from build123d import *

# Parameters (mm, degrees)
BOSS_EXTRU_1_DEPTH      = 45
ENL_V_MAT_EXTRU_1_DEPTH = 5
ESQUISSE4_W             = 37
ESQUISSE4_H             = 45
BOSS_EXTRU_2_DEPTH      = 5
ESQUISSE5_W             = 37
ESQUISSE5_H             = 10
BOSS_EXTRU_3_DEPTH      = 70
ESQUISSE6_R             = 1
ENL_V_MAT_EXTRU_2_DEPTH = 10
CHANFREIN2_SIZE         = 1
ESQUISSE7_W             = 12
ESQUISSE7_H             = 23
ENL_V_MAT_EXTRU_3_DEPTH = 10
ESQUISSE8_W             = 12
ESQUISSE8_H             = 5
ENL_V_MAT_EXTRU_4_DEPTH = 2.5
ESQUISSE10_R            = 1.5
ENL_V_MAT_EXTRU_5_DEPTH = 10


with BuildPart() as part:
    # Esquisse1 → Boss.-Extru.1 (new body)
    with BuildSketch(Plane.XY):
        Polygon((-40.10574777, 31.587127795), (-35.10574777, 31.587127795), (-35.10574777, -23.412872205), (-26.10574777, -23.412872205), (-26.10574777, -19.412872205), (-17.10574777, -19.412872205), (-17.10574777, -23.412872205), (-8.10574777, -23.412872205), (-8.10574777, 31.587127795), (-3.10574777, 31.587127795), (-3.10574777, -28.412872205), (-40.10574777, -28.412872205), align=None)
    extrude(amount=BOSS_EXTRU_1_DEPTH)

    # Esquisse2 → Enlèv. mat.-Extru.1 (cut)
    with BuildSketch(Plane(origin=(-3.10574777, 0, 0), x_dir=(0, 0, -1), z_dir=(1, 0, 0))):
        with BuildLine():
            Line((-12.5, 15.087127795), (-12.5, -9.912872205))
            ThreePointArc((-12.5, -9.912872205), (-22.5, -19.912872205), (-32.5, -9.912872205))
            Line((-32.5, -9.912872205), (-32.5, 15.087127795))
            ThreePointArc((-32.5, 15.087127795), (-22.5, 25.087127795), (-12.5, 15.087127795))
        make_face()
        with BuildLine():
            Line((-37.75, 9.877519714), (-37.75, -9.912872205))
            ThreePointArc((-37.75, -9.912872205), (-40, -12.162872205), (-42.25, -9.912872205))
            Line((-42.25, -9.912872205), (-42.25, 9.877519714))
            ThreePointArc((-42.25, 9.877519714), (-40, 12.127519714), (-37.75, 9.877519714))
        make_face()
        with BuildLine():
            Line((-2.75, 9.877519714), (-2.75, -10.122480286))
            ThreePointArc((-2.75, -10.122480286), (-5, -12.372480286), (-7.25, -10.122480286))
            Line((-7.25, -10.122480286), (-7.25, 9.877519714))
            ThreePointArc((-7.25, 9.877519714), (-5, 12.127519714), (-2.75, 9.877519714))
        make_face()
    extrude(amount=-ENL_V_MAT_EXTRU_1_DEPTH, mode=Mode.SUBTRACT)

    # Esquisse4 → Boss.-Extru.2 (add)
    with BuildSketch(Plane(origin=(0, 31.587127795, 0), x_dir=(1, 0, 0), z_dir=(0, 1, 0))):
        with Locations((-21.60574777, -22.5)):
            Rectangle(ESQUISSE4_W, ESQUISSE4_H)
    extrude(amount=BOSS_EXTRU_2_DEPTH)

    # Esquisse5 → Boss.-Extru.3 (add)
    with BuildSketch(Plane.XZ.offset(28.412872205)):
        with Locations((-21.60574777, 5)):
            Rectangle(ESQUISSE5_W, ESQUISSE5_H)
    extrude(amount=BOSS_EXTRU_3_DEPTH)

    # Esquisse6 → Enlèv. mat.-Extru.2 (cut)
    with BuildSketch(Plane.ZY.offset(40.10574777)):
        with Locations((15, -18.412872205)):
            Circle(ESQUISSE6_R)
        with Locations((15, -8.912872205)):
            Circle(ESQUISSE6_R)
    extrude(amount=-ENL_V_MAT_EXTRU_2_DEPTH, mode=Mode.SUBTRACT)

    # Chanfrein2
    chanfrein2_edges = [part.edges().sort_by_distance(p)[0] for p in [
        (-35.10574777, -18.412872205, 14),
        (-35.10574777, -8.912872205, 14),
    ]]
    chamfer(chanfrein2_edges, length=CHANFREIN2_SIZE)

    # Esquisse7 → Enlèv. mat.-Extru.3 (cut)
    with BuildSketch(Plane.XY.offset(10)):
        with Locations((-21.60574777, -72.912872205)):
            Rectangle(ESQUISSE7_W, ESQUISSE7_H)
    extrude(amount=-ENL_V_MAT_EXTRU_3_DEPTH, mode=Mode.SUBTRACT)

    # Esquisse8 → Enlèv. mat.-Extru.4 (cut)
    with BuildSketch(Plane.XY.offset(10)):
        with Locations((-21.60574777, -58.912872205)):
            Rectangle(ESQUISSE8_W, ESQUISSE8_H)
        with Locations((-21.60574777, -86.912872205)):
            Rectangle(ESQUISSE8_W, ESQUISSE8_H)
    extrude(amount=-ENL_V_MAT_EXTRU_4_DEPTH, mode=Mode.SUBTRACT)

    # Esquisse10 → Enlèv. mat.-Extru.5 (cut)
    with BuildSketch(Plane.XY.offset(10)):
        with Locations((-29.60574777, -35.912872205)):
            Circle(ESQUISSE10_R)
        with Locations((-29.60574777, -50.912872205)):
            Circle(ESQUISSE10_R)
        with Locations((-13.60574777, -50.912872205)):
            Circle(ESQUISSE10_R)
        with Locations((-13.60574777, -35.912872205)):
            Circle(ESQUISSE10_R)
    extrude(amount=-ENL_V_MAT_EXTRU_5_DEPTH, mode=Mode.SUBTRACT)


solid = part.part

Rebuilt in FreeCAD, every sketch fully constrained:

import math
import FreeCAD as App
import Part
import Sketcher


def edges_at(feature, points):
    """Names of the edges that pass closest to the given points."""
    edges = feature.Shape.Edges
    near = lambda p: min(range(len(edges)), key=lambda i: edges[i].distToShape(Part.Vertex(*p))[0])
    return sorted({f"Edge{near(p) + 1}" for p in points})

doc = App.newDocument("Part")
params = doc.addObject("Spreadsheet::Sheet", "Params")
for row, (alias, value) in enumerate([
    ("sketch1_width", "5 mm"),
    ("sketch1_width2", "37 mm"),
    ("sketch1_height", "60 mm"),
    ("sketch1_height2", "55 mm"),
    ("sketch1_height3", "4 mm"),
    ("pad1_length", "45 mm"),
    ("sketch2_radius", "10 mm"),
    ("sketch2_width", "25 mm"),
    ("sketch2_width2", "20 mm"),
    ("sketch2_radius2", "2.25 mm"),
    ("pocket1_length", "5 mm"),
    ("sketch3_width", "37 mm"),
    ("sketch3_height", "45 mm"),
    ("pad2_length", "5 mm"),
    ("sketch4_width", "37 mm"),
    ("sketch4_height", "10 mm"),
    ("pad3_length", "70 mm"),
    ("sketch5_diameter", "2 mm"),
    ("pocket2_length", "10 mm"),
    ("chamfer_size", "1 mm"),
    ("sketch6_width", "12 mm"),
    ("sketch6_height", "23 mm"),
    ("pocket3_length", "10 mm"),
    ("sketch7_width", "12 mm"),
    ("sketch7_height", "5 mm"),
    ("pocket4_length", "2.5 mm"),
    ("sketch8_diameter", "3 mm"),
    ("pocket5_length", "10 mm"),
], start=1):
    params.set(f"A{row}", alias)
    params.set(f"B{row}", "=" + value)
    params.setAlias(f"B{row}", alias)

body = doc.addObject("PartDesign::Body", "Body")

# Sketch on XY plane
sketch1 = body.newObject("Sketcher::SketchObject", "Sketch")
sketch1.AttachmentSupport = (doc.getObject("XY_Plane"), [""])
sketch1.MapMode = "FlatFace"
sketch1.addGeometry([
    Part.LineSegment(App.Vector(-35.105748, 31.587128, 0), App.Vector(-40.105748, 31.587128, 0)),  # 0
    Part.LineSegment(App.Vector(-40.105748, 31.587128, 0), App.Vector(-40.105748, -28.412872, 0)),  # 1
    Part.LineSegment(App.Vector(-40.105748, -28.412872, 0), App.Vector(-3.105748, -28.412872, 0)),  # 2
    Part.LineSegment(App.Vector(-3.105748, -28.412872, 0), App.Vector(-3.105748, 31.587128, 0)),  # 3
    Part.LineSegment(App.Vector(-3.105748, 31.587128, 0), App.Vector(-8.105748, 31.587128, 0)),  # 4
    Part.LineSegment(App.Vector(-8.105748, 31.587128, 0), App.Vector(-8.105748, -23.412872, 0)),  # 5
    Part.LineSegment(App.Vector(-8.105748, -23.412872, 0), App.Vector(-17.105748, -23.412872, 0)),  # 6
    Part.LineSegment(App.Vector(-17.105748, -23.412872, 0), App.Vector(-17.105748, -19.412872, 0)),  # 7
    Part.LineSegment(App.Vector(-17.105748, -19.412872, 0), App.Vector(-26.105748, -19.412872, 0)),  # 8
    Part.LineSegment(App.Vector(-26.105748, -19.412872, 0), App.Vector(-26.105748, -23.412872, 0)),  # 9
    Part.LineSegment(App.Vector(-26.105748, -23.412872, 0), App.Vector(-35.105748, -23.412872, 0)),  # 10
    Part.LineSegment(App.Vector(-35.105748, -23.412872, 0), App.Vector(-35.105748, 31.587128, 0)),  # 11
], False)
sketch1.addConstraint([
    Sketcher.Constraint("Coincident", 0, 2, 1, 1),
    Sketcher.Constraint("Coincident", 1, 2, 2, 1),
    Sketcher.Constraint("Coincident", 2, 2, 3, 1),
    Sketcher.Constraint("Coincident", 3, 2, 4, 1),
    Sketcher.Constraint("Coincident", 4, 2, 5, 1),
    Sketcher.Constraint("Coincident", 5, 2, 6, 1),
    Sketcher.Constraint("Coincident", 6, 2, 7, 1),
    Sketcher.Constraint("Coincident", 7, 2, 8, 1),
    Sketcher.Constraint("Coincident", 8, 2, 9, 1),
    Sketcher.Constraint("Coincident", 9, 2, 10, 1),
    Sketcher.Constraint("Coincident", 10, 2, 11, 1),
    Sketcher.Constraint("Coincident", 11, 2, 0, 1),
    Sketcher.Constraint("Horizontal", 0),
    Sketcher.Constraint("Vertical", 1),
    Sketcher.Constraint("Horizontal", 2),
    Sketcher.Constraint("Vertical", 3),
    Sketcher.Constraint("Horizontal", 4),
    Sketcher.Constraint("Vertical", 5),
    Sketcher.Constraint("Horizontal", 6),
    Sketcher.Constraint("Vertical", 7),
    Sketcher.Constraint("Horizontal", 8),
    Sketcher.Constraint("Vertical", 9),
    Sketcher.Constraint("Horizontal", 10),
    Sketcher.Constraint("Vertical", 11),
    Sketcher.Constraint("Horizontal", 0, 2, 3, 2),
    Sketcher.Constraint("Horizontal", 6, 2, 9, 2),
    Sketcher.Constraint("Equal", 0, 4),
    Sketcher.Constraint("Equal", 6, 8),
    Sketcher.Constraint("Equal", 8, 10),
    Sketcher.Constraint("DistanceX", 0, 2, 0, 1, 5.0),
    Sketcher.Constraint("DistanceX", 2, 1, 2, 2, 37.0),
    Sketcher.Constraint("DistanceY", 1, 2, 1, 1, 60.0),
    Sketcher.Constraint("DistanceY", 5, 2, 5, 1, 55.0),
    Sketcher.Constraint("DistanceY", 7, 1, 7, 2, 4.0),
    Sketcher.Constraint("DistanceX", 0, 2, -1, 1, 40.105748),
    Sketcher.Constraint("DistanceY", -1, 1, 0, 2, 31.587128),
])
sketch1.setExpression("Constraints[29]", "Params.sketch1_width")
sketch1.setExpression("Constraints[30]", "Params.sketch1_width2")
sketch1.setExpression("Constraints[31]", "Params.sketch1_height")
sketch1.setExpression("Constraints[32]", "Params.sketch1_height2")
sketch1.setExpression("Constraints[33]", "Params.sketch1_height3")
pad1 = body.newObject("PartDesign::Pad", "Pad")
pad1.Profile = sketch1
pad1.setExpression("Length", "Params.pad1_length")

# Sketch on YZ plane
sketch2 = body.newObject("Sketcher::SketchObject", "Sketch001")
sketch2.AttachmentSupport = (doc.getObject("YZ_Plane"), [""])
sketch2.MapMode = "FlatFace"
sketch2.AttachmentOffset = App.Placement(App.Vector(0, 0, -3.105748), App.Rotation())
sketch2.addGeometry([
    Part.LineSegment(App.Vector(-9.912872, 12.5, 0), App.Vector(15.087128, 12.5, 0)),  # 0
    Part.ArcOfCircle(Part.Circle(App.Vector(15.087128, 22.5, 0), App.Vector(0, 0, 1), 10), math.radians(-90), math.radians(90)),  # 1
    Part.LineSegment(App.Vector(15.087128, 32.5, 0), App.Vector(-9.912872, 32.5, 0)),  # 2
    Part.ArcOfCircle(Part.Circle(App.Vector(-9.912872, 22.5, 0), App.Vector(0, 0, 1), 10), math.radians(90), math.radians(270)),  # 3
    Part.LineSegment(App.Vector(-9.912872, 37.75, 0), App.Vector(9.87752, 37.75, 0)),  # 4
    Part.ArcOfCircle(Part.Circle(App.Vector(9.87752, 40, 0), App.Vector(0, 0, 1), 2.25), math.radians(-90), math.radians(90)),  # 5
    Part.LineSegment(App.Vector(9.87752, 42.25, 0), App.Vector(-9.912872, 42.25, 0)),  # 6
    Part.ArcOfCircle(Part.Circle(App.Vector(-9.912872, 40, 0), App.Vector(0, 0, 1), 2.25), math.radians(90), math.radians(270)),  # 7
    Part.LineSegment(App.Vector(-10.12248, 2.75, 0), App.Vector(9.87752, 2.75, 0)),  # 8
    Part.ArcOfCircle(Part.Circle(App.Vector(9.87752, 5, 0), App.Vector(0, 0, 1), 2.25), math.radians(-90), math.radians(90)),  # 9
    Part.LineSegment(App.Vector(9.87752, 7.25, 0), App.Vector(-10.12248, 7.25, 0)),  # 10
    Part.ArcOfCircle(Part.Circle(App.Vector(-10.12248, 5, 0), App.Vector(0, 0, 1), 2.25), math.radians(90), math.radians(270)),  # 11
], False)
sketch2.addConstraint([
    Sketcher.Constraint("Tangent", 0, 2, 1, 1),
    Sketcher.Constraint("Tangent", 1, 2, 2, 1),
    Sketcher.Constraint("Tangent", 2, 2, 3, 1),
    Sketcher.Constraint("Tangent", 3, 2, 0, 1),
    Sketcher.Constraint("Tangent", 4, 2, 5, 1),
    Sketcher.Constraint("Tangent", 5, 2, 6, 1),
    Sketcher.Constraint("Tangent", 6, 2, 7, 1),
    Sketcher.Constraint("Tangent", 7, 2, 4, 1),
    Sketcher.Constraint("Tangent", 8, 2, 9, 1),
    Sketcher.Constraint("Tangent", 9, 2, 10, 1),
    Sketcher.Constraint("Tangent", 10, 2, 11, 1),
    Sketcher.Constraint("Tangent", 11, 2, 8, 1),
    Sketcher.Constraint("Horizontal", 0),
    Sketcher.Constraint("Horizontal", 2),
    Sketcher.Constraint("Horizontal", 4),
    Sketcher.Constraint("Horizontal", 6),
    Sketcher.Constraint("Horizontal", 8),
    Sketcher.Constraint("Horizontal", 10),
    Sketcher.Constraint("Equal", 7, 9),
    Sketcher.Constraint("Vertical", 3, 3, 7, 3),
    Sketcher.Constraint("Vertical", 5, 3, 9, 3),
    Sketcher.Constraint("Radius", 1, 10.0),
    Sketcher.Constraint("DistanceX", 0, 1, 0, 2, 25.0),
    Sketcher.Constraint("DistanceX", 8, 1, 8, 2, 20.0),
    Sketcher.Constraint("Radius", 5, 2.25),
    Sketcher.Constraint("DistanceY", -1, 1, 5, 3, 40.0),
    Sketcher.Constraint("DistanceY", -1, 1, 9, 3, 5.0),
    Sketcher.Constraint("DistanceY", -1, 1, 1, 3, 22.5),
    Sketcher.Constraint("DistanceX", 4, 1, 4, 2, 19.790392),
    Sketcher.Constraint("DistanceX", -1, 1, 5, 3, 9.87752),
])
sketch2.setExpression("Constraints[21]", "Params.sketch2_radius")
sketch2.setExpression("Constraints[22]", "Params.sketch2_width")
sketch2.setExpression("Constraints[23]", "Params.sketch2_width2")
sketch2.setExpression("Constraints[24]", "Params.sketch2_radius2")
pocket1 = body.newObject("PartDesign::Pocket", "Pocket")
pocket1.Profile = sketch2
pocket1.setExpression("Length", "Params.pocket1_length")

# Sketch on XZ plane
sketch3 = body.newObject("Sketcher::SketchObject", "Sketch002")
sketch3.AttachmentSupport = (doc.getObject("XZ_Plane"), [""])
sketch3.MapMode = "FlatFace"
sketch3.AttachmentOffset = App.Placement(App.Vector(0, 0, -31.587128), App.Rotation())
sketch3.addGeometry([
    Part.LineSegment(App.Vector(-40.105748, 0, 0), App.Vector(-40.105748, 45, 0)),
    Part.LineSegment(App.Vector(-40.105748, 45, 0), App.Vector(-3.105748, 45, 0)),
    Part.LineSegment(App.Vector(-3.105748, 45, 0), App.Vector(-3.105748, 0, 0)),
    Part.LineSegment(App.Vector(-3.105748, 0, 0), App.Vector(-40.105748, 0, 0)),
], False)
sketch3.addConstraint([
    Sketcher.Constraint("Coincident", 0, 2, 1, 1),
    Sketcher.Constraint("Coincident", 1, 2, 2, 1),
    Sketcher.Constraint("Coincident", 2, 2, 3, 1),
    Sketcher.Constraint("Coincident", 3, 2, 0, 1),
    Sketcher.Constraint("Vertical", 0),
    Sketcher.Constraint("Horizontal", 1),
    Sketcher.Constraint("Vertical", 2),
    Sketcher.Constraint("Horizontal", 3),
    Sketcher.Constraint("PointOnObject", 2, 2, -1),
    Sketcher.Constraint("DistanceX", 1, 1, 1, 2, 37.0),
    Sketcher.Constraint("DistanceY", 0, 1, 0, 2, 45.0),
    Sketcher.Constraint("DistanceX", 0, 2, -1, 1, 40.105748),
])
sketch3.setExpression("Constraints[9]", "Params.sketch3_width")
sketch3.setExpression("Constraints[10]", "Params.sketch3_height")
pad2 = body.newObject("PartDesign::Pad", "Pad001")
pad2.Profile = sketch3
pad2.setExpression("Length", "Params.pad2_length")
pad2.Reversed = True

# Sketch on XZ plane
sketch4 = body.newObject("Sketcher::SketchObject", "Sketch003")
sketch4.AttachmentSupport = (doc.getObject("XZ_Plane"), [""])
sketch4.MapMode = "FlatFace"
sketch4.AttachmentOffset = App.Placement(App.Vector(0, 0, 28.412872), App.Rotation())
sketch4.addGeometry([
    Part.LineSegment(App.Vector(-40.105748, 10, 0), App.Vector(-40.105748, 0, 0)),
    Part.LineSegment(App.Vector(-40.105748, 0, 0), App.Vector(-3.105748, 0, 0)),
    Part.LineSegment(App.Vector(-3.105748, 0, 0), App.Vector(-3.105748, 10, 0)),
    Part.LineSegment(App.Vector(-3.105748, 10, 0), App.Vector(-40.105748, 10, 0)),
], False)
sketch4.addConstraint([
    Sketcher.Constraint("Coincident", 0, 2, 1, 1),
    Sketcher.Constraint("Coincident", 1, 2, 2, 1),
    Sketcher.Constraint("Coincident", 2, 2, 3, 1),
    Sketcher.Constraint("Coincident", 3, 2, 0, 1),
    Sketcher.Constraint("Vertical", 0),
    Sketcher.Constraint("Horizontal", 1),
    Sketcher.Constraint("Vertical", 2),
    Sketcher.Constraint("Horizontal", 3),
    Sketcher.Constraint("PointOnObject", 0, 2, -1),
    Sketcher.Constraint("DistanceX", 1, 1, 1, 2, 37.0),
    Sketcher.Constraint("DistanceY", 0, 2, 0, 1, 10.0),
    Sketcher.Constraint("DistanceX", 0, 2, -1, 1, 40.105748),
])
sketch4.setExpression("Constraints[9]", "Params.sketch4_width")
sketch4.setExpression("Constraints[10]", "Params.sketch4_height")
pad3 = body.newObject("PartDesign::Pad", "Pad002")
pad3.Profile = sketch4
pad3.setExpression("Length", "Params.pad3_length")

# Sketch on YZ plane
sketch5 = body.newObject("Sketcher::SketchObject", "Sketch004")
sketch5.AttachmentSupport = (doc.getObject("YZ_Plane"), [""])
sketch5.MapMode = "FlatFace"
sketch5.AttachmentOffset = App.Placement(App.Vector(0, 0, -40.105748), App.Rotation())
sketch5.addGeometry([
    Part.Circle(App.Vector(-18.412872, 15, 0), App.Vector(0, 0, 1), 1),
    Part.Circle(App.Vector(-8.912872, 15, 0), App.Vector(0, 0, 1), 1),
], False)
sketch5.addConstraint([
    Sketcher.Constraint("Equal", 0, 1),
    Sketcher.Constraint("Horizontal", 0, 3, 1, 3),
    Sketcher.Constraint("Diameter", 0, 2.0),
    Sketcher.Constraint("DistanceY", -1, 1, 0, 3, 15.0),
    Sketcher.Constraint("DistanceX", 0, 3, 1, 3, 9.5),
    Sketcher.Constraint("DistanceX", 0, 3, -1, 1, 18.412872),
])
sketch5.setExpression("Constraints[2]", "Params.sketch5_diameter")
pocket2 = body.newObject("PartDesign::Pocket", "Pocket001")
pocket2.Profile = sketch5
pocket2.setExpression("Length", "Params.pocket2_length")
pocket2.Reversed = True
doc.recompute()

chamfer = body.newObject("PartDesign::Chamfer", "Chamfer")
chamfer.Base = (pocket2, edges_at(pocket2, [(-35.106, -18.413, 14), (-35.106, -8.913, 14)]))
chamfer.setExpression("Size", "Params.chamfer_size")

# Sketch on XY plane
sketch6 = body.newObject("Sketcher::SketchObject", "Sketch005")
sketch6.AttachmentSupport = (doc.getObject("XY_Plane"), [""])
sketch6.MapMode = "FlatFace"
sketch6.AttachmentOffset = App.Placement(App.Vector(0, 0, 10), App.Rotation())
sketch6.addGeometry([
    Part.LineSegment(App.Vector(-27.605748, -61.412872, 0), App.Vector(-27.605748, -84.412872, 0)),
    Part.LineSegment(App.Vector(-27.605748, -84.412872, 0), App.Vector(-15.605748, -84.412872, 0)),
    Part.LineSegment(App.Vector(-15.605748, -84.412872, 0), App.Vector(-15.605748, -61.412872, 0)),
    Part.LineSegment(App.Vector(-15.605748, -61.412872, 0), App.Vector(-27.605748, -61.412872, 0)),
], False)
sketch6.addConstraint([
    Sketcher.Constraint("Coincident", 0, 2, 1, 1),
    Sketcher.Constraint("Coincident", 1, 2, 2, 1),
    Sketcher.Constraint("Coincident", 2, 2, 3, 1),
    Sketcher.Constraint("Coincident", 3, 2, 0, 1),
    Sketcher.Constraint("Vertical", 0),
    Sketcher.Constraint("Horizontal", 1),
    Sketcher.Constraint("Vertical", 2),
    Sketcher.Constraint("Horizontal", 3),
    Sketcher.Constraint("DistanceX", 1, 1, 1, 2, 12.0),
    Sketcher.Constraint("DistanceY", 0, 2, 0, 1, 23.0),
    Sketcher.Constraint("DistanceX", 0, 2, -1, 1, 27.605748),
    Sketcher.Constraint("DistanceY", 0, 2, -1, 1, 84.412872),
])
sketch6.setExpression("Constraints[8]", "Params.sketch6_width")
sketch6.setExpression("Constraints[9]", "Params.sketch6_height")
pocket3 = body.newObject("PartDesign::Pocket", "Pocket002")
pocket3.Profile = sketch6
pocket3.setExpression("Length", "Params.pocket3_length")

# Sketch on XY plane
sketch7 = body.newObject("Sketcher::SketchObject", "Sketch006")
sketch7.AttachmentSupport = (doc.getObject("XY_Plane"), [""])
sketch7.MapMode = "FlatFace"
sketch7.AttachmentOffset = App.Placement(App.Vector(0, 0, 10), App.Rotation())
sketch7.addGeometry([
    Part.LineSegment(App.Vector(-27.605748, -56.412872, 0), App.Vector(-27.605748, -61.412872, 0)),  # 0
    Part.LineSegment(App.Vector(-27.605748, -61.412872, 0), App.Vector(-15.605748, -61.412872, 0)),  # 1
    Part.LineSegment(App.Vector(-15.605748, -61.412872, 0), App.Vector(-15.605748, -56.412872, 0)),  # 2
    Part.LineSegment(App.Vector(-15.605748, -56.412872, 0), App.Vector(-27.605748, -56.412872, 0)),  # 3
    Part.LineSegment(App.Vector(-27.605748, -84.412872, 0), App.Vector(-27.605748, -89.412872, 0)),  # 4
    Part.LineSegment(App.Vector(-27.605748, -89.412872, 0), App.Vector(-15.605748, -89.412872, 0)),  # 5
    Part.LineSegment(App.Vector(-15.605748, -89.412872, 0), App.Vector(-15.605748, -84.412872, 0)),  # 6
    Part.LineSegment(App.Vector(-15.605748, -84.412872, 0), App.Vector(-27.605748, -84.412872, 0)),  # 7
], False)
sketch7.addConstraint([
    Sketcher.Constraint("Coincident", 0, 2, 1, 1),
    Sketcher.Constraint("Coincident", 1, 2, 2, 1),
    Sketcher.Constraint("Coincident", 2, 2, 3, 1),
    Sketcher.Constraint("Coincident", 3, 2, 0, 1),
    Sketcher.Constraint("Coincident", 4, 2, 5, 1),
    Sketcher.Constraint("Coincident", 5, 2, 6, 1),
    Sketcher.Constraint("Coincident", 6, 2, 7, 1),
    Sketcher.Constraint("Coincident", 7, 2, 4, 1),
    Sketcher.Constraint("Vertical", 0),
    Sketcher.Constraint("Horizontal", 1),
    Sketcher.Constraint("Vertical", 2),
    Sketcher.Constraint("Horizontal", 3),
    Sketcher.Constraint("Vertical", 4),
    Sketcher.Constraint("Horizontal", 5),
    Sketcher.Constraint("Vertical", 6),
    Sketcher.Constraint("Horizontal", 7),
    Sketcher.Constraint("Vertical", 3, 2, 4, 2),
    Sketcher.Constraint("Vertical", 2, 2, 5, 2),
    Sketcher.Constraint("Equal", 2, 4),
    Sketcher.Constraint("DistanceX", 1, 1, 1, 2, 12.0),
    Sketcher.Constraint("DistanceY", 0, 2, 0, 1, 5.0),
    Sketcher.Constraint("DistanceY", 4, 2, 0, 2, 28.0),
    Sketcher.Constraint("DistanceX", 0, 2, -1, 1, 27.605748),
    Sketcher.Constraint("DistanceY", 0, 2, -1, 1, 61.412872),
])
sketch7.setExpression("Constraints[19]", "Params.sketch7_width")
sketch7.setExpression("Constraints[20]", "Params.sketch7_height")
pocket4 = body.newObject("PartDesign::Pocket", "Pocket003")
pocket4.Profile = sketch7
pocket4.setExpression("Length", "Params.pocket4_length")

# Sketch on XY plane
sketch8 = body.newObject("Sketcher::SketchObject", "Sketch007")
sketch8.AttachmentSupport = (doc.getObject("XY_Plane"), [""])
sketch8.MapMode = "FlatFace"
sketch8.AttachmentOffset = App.Placement(App.Vector(0, 0, 10), App.Rotation())
sketch8.addGeometry([
    Part.Circle(App.Vector(-29.605748, -35.912872, 0), App.Vector(0, 0, 1), 1.5),
    Part.Circle(App.Vector(-29.605748, -50.912872, 0), App.Vector(0, 0, 1), 1.5),
    Part.Circle(App.Vector(-13.605748, -50.912872, 0), App.Vector(0, 0, 1), 1.5),
    Part.Circle(App.Vector(-13.605748, -35.912872, 0), App.Vector(0, 0, 1), 1.5),
], False)
sketch8.addConstraint([
    Sketcher.Constraint("Equal", 0, 1),
    Sketcher.Constraint("Equal", 1, 2),
    Sketcher.Constraint("Equal", 2, 3),
    Sketcher.Constraint("Horizontal", 1, 3, 2, 3),
    Sketcher.Constraint("Horizontal", 0, 3, 3, 3),
    Sketcher.Constraint("Vertical", 0, 3, 1, 3),
    Sketcher.Constraint("Vertical", 2, 3, 3, 3),
    Sketcher.Constraint("Diameter", 0, 3.0),
    Sketcher.Constraint("DistanceY", 1, 3, 0, 3, 15.0),
    Sketcher.Constraint("DistanceX", 1, 3, 2, 3, 16.0),
    Sketcher.Constraint("DistanceX", 0, 3, -1, 1, 29.605748),
    Sketcher.Constraint("DistanceY", 0, 3, -1, 1, 35.912872),
])
sketch8.setExpression("Constraints[7]", "Params.sketch8_diameter")
pocket5 = body.newObject("PartDesign::Pocket", "Pocket004")
pocket5.Profile = sketch8
pocket5.setExpression("Length", "Params.pocket5_length")

doc.recompute()
